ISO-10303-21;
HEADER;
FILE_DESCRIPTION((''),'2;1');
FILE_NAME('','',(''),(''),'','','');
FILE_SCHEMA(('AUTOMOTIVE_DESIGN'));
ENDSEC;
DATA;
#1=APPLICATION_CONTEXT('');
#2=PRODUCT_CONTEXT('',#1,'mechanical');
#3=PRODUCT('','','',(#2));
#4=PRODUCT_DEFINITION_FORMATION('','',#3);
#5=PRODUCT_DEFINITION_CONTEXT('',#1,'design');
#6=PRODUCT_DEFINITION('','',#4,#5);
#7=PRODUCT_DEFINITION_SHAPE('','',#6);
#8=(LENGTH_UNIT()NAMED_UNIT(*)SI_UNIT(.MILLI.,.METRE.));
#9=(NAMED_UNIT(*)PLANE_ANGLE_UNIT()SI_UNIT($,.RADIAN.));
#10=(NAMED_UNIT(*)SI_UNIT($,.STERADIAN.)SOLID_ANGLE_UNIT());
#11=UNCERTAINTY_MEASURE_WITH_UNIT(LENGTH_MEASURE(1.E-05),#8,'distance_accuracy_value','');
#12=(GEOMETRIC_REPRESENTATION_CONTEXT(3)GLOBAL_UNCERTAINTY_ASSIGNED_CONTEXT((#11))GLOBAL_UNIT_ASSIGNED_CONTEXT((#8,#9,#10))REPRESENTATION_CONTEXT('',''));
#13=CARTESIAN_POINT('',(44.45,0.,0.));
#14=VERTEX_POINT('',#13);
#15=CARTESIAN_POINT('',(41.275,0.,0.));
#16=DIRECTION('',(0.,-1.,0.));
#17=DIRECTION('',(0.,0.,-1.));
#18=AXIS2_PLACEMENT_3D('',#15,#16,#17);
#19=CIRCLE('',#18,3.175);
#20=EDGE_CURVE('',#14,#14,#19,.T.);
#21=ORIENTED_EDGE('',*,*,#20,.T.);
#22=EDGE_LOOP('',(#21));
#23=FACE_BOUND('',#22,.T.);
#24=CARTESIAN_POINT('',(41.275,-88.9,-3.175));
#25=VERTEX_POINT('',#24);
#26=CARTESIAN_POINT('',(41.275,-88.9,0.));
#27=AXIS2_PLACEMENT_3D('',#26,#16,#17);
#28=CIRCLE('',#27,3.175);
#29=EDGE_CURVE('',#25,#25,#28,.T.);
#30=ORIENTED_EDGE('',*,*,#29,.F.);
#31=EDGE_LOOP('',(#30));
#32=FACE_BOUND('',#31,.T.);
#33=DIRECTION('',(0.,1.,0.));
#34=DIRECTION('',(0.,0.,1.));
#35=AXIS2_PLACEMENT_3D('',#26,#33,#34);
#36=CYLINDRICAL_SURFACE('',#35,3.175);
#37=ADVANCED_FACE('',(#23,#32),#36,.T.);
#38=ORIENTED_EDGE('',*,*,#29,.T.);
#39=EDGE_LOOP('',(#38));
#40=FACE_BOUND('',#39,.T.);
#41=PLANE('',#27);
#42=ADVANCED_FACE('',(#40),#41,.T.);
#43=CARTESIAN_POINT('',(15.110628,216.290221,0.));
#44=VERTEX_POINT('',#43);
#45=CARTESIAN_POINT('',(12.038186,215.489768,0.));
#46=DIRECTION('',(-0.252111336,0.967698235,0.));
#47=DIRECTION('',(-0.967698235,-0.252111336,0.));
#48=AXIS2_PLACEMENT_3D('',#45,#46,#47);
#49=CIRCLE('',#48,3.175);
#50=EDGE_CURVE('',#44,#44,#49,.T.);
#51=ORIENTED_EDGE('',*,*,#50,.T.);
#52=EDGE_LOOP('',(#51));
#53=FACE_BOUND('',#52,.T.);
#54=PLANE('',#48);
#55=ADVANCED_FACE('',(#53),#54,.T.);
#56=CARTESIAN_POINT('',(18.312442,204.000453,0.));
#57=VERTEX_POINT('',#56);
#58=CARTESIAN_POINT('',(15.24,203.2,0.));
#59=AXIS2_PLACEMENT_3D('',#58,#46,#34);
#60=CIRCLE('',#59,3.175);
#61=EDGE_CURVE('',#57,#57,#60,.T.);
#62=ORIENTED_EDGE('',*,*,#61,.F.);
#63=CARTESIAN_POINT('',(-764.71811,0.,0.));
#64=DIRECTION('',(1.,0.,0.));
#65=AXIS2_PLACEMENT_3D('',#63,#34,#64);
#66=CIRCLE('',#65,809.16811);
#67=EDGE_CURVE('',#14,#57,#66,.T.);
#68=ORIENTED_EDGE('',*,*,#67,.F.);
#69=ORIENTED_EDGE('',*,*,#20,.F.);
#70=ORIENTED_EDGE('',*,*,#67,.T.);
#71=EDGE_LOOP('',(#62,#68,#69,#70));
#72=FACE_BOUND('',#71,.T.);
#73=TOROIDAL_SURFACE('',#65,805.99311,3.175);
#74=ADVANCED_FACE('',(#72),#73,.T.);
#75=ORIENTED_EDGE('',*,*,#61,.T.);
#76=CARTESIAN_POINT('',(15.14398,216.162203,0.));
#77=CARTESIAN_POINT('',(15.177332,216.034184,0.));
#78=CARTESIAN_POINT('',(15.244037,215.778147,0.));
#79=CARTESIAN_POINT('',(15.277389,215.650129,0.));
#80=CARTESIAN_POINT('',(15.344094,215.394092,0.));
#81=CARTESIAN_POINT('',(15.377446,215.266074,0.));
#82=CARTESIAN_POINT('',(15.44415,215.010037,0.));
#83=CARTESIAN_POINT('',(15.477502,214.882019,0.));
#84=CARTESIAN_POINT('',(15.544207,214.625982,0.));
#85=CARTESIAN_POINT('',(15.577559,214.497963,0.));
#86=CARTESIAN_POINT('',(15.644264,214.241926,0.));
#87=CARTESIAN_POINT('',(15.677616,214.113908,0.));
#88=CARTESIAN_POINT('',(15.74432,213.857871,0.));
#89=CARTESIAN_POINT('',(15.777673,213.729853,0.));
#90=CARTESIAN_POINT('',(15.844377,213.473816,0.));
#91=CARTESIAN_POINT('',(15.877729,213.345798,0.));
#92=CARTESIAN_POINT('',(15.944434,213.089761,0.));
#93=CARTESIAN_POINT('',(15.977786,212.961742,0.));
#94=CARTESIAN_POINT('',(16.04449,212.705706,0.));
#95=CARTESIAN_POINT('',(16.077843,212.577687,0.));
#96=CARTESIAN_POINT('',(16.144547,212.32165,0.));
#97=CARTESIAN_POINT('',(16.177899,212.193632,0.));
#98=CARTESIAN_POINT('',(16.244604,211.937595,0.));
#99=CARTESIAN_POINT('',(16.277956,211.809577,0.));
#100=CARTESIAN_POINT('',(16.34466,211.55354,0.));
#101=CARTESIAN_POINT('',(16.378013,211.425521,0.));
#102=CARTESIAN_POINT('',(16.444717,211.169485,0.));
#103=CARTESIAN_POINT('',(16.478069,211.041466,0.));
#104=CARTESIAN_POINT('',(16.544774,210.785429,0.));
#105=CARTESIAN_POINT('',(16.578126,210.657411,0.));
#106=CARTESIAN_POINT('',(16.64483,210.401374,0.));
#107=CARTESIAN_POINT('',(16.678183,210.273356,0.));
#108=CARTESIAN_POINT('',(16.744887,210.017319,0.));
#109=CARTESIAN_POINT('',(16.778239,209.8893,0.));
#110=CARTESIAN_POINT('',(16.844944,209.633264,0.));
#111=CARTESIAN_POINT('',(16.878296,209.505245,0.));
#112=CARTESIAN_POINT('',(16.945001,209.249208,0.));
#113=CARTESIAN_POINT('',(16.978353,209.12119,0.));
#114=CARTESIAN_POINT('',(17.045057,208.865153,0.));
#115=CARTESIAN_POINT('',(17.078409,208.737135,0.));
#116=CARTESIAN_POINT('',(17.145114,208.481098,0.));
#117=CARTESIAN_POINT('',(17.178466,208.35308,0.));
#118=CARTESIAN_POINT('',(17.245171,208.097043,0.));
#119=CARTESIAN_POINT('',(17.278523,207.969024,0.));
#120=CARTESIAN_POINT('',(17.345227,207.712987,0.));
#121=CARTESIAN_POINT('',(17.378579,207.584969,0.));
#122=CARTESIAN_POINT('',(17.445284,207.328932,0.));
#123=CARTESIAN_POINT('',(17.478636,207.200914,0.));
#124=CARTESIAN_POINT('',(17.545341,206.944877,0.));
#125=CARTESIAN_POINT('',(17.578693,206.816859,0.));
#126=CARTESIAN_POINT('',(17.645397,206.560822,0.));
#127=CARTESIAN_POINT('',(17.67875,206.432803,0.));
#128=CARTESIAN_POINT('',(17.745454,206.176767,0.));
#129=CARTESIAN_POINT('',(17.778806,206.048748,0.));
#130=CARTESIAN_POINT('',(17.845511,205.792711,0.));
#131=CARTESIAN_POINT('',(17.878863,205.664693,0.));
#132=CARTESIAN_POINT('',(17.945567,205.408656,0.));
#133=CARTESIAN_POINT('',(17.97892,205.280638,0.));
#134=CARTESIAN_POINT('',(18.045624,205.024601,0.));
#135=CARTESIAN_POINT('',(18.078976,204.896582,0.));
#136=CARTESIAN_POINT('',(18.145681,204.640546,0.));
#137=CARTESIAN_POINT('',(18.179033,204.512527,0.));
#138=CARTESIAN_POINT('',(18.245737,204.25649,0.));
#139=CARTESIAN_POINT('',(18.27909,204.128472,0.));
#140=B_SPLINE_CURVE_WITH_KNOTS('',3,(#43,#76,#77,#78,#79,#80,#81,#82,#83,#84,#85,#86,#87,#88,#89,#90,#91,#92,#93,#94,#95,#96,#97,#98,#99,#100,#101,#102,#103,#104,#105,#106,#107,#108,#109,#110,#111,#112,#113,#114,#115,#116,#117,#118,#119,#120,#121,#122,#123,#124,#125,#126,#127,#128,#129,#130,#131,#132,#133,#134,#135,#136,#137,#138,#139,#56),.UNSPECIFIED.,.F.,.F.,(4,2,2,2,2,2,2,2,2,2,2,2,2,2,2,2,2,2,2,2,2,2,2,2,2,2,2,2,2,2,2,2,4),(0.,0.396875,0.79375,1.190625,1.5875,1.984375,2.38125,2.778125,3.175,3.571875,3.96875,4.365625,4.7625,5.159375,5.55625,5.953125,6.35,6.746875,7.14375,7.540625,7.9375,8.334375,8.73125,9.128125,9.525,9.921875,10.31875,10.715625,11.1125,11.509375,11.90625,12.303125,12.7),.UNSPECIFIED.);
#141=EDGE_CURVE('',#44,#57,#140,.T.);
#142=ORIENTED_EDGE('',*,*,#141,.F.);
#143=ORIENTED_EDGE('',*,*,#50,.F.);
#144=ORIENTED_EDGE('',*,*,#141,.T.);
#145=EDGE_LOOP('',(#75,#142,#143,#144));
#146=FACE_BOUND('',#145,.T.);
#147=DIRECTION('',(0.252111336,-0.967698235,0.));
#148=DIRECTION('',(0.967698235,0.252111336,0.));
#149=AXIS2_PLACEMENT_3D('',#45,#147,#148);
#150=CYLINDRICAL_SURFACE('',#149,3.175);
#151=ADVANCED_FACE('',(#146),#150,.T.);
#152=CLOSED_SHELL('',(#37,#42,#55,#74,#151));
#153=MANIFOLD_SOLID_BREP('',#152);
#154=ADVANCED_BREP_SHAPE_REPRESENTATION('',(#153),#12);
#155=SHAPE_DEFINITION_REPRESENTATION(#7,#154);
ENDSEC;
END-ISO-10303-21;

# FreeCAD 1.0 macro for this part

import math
import FreeCAD as App
import Part
import Sketcher
Q = App.Units.Quantity

doc = App.newDocument("Part")
body = doc.addObject("PartDesign::Body", "Body")

# Sketch on XZ plane
sketch1 = body.newObject("Sketcher::SketchObject", "Sketch")
sketch1.AttachmentSupport = (doc.getObject("XZ_Plane"), [""])
sketch1.MapMode = "FlatFace"
sketch1.addGeometry(Part.Circle(App.Vector(41.3, 0, 0), App.Vector(0, 0, 1), 3.2), False)
sketch1.addConstraint([
    Sketcher.Constraint("PointOnObject", 0, 3, -1),
    Sketcher.Constraint("Diameter", 0, Q("0.25 in")),
    Sketcher.Constraint("DistanceX", -1, 1, 0, 3, Q("1.625 in")),
])

# Sketch on XY plane
sketch2 = body.newObject("Sketcher::SketchObject", "Sketch001")
sketch2.AttachmentSupport = (doc.getObject("XY_Plane"), [""])
sketch2.MapMode = "FlatFace"
sketch2.addGeometry(Part.ArcOfCircle(Part.Circle(App.Vector(-765, 0, 0), App.Vector(0, 0, 1), 806), math.radians(0), math.radians(14.6)), False)
sketch2.addConstraint([
    Sketcher.Constraint("PointOnObject", 0, 3, -1),
    Sketcher.Constraint("PointOnObject", 0, 1, -1),
    Sketcher.Constraint("DistanceY", -1, 1, 0, 2, Q("8 in")),
    Sketcher.Constraint("DistanceX", -1, 1, 0, 2, Q("0.6 in")),
    Sketcher.Constraint("DistanceX", -1, 1, 0, 1, Q("1.625 in")),
])
doc.recompute()

additivepipe = body.newObject("PartDesign::AdditivePipe", "AdditivePipe")
additivepipe.Profile = sketch1
additivepipe.Spine = (sketch2, ["Edge1"])

# Sketch on an angled plane
sketch3 = body.newObject("Sketcher::SketchObject", "Sketch002")
sketch3.Placement = App.Placement(App.Vector(-48.605579, 186.566515, 0), App.Rotation(App.Vector(0.967698235, 0.252111336, 0), App.Vector(0, 0, -1), App.Vector(-0.252111336, 0.967698235, 0), "ZXY"))
sketch3.addGeometry(Part.Circle(App.Vector(66, 0, 0), App.Vector(0, 0, 1), 3.2), False)
sketch3.addConstraint([
    Sketcher.Constraint("PointOnObject", 0, 3, -1),
    Sketcher.Constraint("Diameter", 0, Q("0.25 in")),
    Sketcher.Constraint("DistanceX", -1, 1, 0, 3, Q("65.976745 mm")),
])
pad1 = body.newObject("PartDesign::Pad", "Pad")
pad1.Profile = sketch3
pad1.Length = Q("0.5 in")

# Sketch on XZ plane
sketch4 = body.newObject("Sketcher::SketchObject", "Sketch003")
sketch4.AttachmentSupport = (doc.getObject("XZ_Plane"), [""])
sketch4.MapMode = "FlatFace"
sketch4.addGeometry(Part.Circle(App.Vector(41.3, 0, 0), App.Vector(0, 0, 1), 3.2), False)
sketch4.addConstraint([
    Sketcher.Constraint("PointOnObject", 0, 3, -1),
    Sketcher.Constraint("Diameter", 0, Q("0.25 in")),
    Sketcher.Constraint("DistanceX", -1, 1, 0, 3, Q("1.625 in")),
])
pad2 = body.newObject("PartDesign::Pad", "Pad001")
pad2.Profile = sketch4
pad2.Length = Q("3.5 in")

doc.recompute()
